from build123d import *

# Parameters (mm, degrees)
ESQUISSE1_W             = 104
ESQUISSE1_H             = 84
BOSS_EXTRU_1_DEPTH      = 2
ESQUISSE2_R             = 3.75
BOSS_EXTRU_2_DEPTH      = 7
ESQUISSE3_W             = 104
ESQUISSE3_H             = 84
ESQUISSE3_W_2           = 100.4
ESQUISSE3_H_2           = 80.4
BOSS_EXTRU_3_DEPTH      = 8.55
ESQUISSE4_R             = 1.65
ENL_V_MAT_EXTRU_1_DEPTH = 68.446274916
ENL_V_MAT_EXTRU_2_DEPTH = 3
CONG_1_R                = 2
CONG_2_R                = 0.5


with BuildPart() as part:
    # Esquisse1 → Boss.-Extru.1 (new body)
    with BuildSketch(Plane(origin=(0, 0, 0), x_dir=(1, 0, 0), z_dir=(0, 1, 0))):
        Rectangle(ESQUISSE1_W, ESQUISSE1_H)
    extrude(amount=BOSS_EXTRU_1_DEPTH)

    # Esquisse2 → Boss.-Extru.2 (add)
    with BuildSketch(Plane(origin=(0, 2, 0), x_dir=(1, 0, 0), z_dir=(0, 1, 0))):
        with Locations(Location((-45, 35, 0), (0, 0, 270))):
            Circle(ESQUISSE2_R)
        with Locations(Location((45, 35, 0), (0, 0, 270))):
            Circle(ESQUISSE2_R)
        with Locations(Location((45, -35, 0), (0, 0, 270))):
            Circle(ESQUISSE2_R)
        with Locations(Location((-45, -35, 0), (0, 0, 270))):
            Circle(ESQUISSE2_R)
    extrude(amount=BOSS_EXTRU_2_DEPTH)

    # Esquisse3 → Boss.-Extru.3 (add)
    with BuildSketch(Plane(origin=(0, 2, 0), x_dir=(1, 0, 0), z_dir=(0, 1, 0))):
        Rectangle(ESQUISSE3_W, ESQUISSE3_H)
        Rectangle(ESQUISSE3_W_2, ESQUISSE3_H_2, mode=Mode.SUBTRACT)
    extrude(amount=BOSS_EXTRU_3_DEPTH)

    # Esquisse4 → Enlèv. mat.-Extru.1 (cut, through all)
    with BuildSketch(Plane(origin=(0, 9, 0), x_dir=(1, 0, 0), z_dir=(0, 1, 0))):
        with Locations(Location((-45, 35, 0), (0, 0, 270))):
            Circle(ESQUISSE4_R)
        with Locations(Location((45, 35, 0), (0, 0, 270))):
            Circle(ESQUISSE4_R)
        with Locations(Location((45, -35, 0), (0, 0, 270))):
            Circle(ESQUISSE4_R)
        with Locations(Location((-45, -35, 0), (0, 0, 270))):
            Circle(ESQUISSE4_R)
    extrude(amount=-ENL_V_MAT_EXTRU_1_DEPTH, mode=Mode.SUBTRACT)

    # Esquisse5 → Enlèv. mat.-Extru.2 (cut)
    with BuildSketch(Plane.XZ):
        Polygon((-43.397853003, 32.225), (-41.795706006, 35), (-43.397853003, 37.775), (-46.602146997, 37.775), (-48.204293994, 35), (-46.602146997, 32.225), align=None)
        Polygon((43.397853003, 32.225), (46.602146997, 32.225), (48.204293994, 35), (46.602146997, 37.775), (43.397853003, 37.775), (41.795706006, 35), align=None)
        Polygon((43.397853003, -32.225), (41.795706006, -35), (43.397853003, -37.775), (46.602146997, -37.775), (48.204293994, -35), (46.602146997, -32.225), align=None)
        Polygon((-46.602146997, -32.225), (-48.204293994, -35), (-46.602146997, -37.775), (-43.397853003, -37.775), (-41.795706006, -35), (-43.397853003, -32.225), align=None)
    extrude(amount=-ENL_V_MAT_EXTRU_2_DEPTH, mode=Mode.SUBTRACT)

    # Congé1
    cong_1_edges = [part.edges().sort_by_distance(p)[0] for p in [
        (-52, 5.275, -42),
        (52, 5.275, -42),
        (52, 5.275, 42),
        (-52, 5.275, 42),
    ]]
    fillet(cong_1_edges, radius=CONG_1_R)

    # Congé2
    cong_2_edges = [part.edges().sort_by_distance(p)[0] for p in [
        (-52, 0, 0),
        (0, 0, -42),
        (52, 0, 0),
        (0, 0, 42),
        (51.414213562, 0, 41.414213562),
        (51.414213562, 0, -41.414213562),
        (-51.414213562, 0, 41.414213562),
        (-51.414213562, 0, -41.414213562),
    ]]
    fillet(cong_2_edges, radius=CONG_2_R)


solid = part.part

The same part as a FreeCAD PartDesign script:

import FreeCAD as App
import Part
import Sketcher
Q = App.Units.Quantity


def edges_at(feature, points):
    """Names of the edges that pass closest to the given points."""
    edges = feature.Shape.Edges
    near = lambda p: min(range(len(edges)), key=lambda i: edges[i].distToShape(Part.Vertex(*p))[0])
    return sorted({f"Edge{near(p) + 1}" for p in points})

doc = App.newDocument("Part")
params = doc.addObject("Spreadsheet::Sheet", "Params")
for row, (alias, value) in enumerate([
    ("sketch1_width", "104 mm"),
    ("sketch1_height", "84 mm"),
    ("pad1_length", "2 mm"),
    ("sketch2_diameter", "7.5 mm"),
    ("pad2_length", "7 mm"),
    ("sketch3_width", "104 mm"),
    ("sketch3_height", "84 mm"),
    ("sketch3_width2", "100.4 mm"),
    ("sketch3_height2", "80.4 mm"),
    ("pad3_length", "8.55 mm"),
    ("sketch4_diameter", "3.3 mm"),
    ("pocket2_length", "3 mm"),
    ("fillet_radius", "2 mm"),
    ("fillet2_radius", "0.5 mm"),
], start=1):
    params.set(f"A{row}", alias)
    params.set(f"B{row}", "=" + value)
    params.setAlias(f"B{row}", alias)

body = doc.addObject("PartDesign::Body", "Body")

# Sketch on XZ plane
sketch1 = body.newObject("Sketcher::SketchObject", "Sketch")
sketch1.AttachmentSupport = (doc.getObject("XZ_Plane"), [""])
sketch1.MapMode = "FlatFace"
sketch1.addGeometry(Part.LineSegment(App.Vector(-52, -42, 0), App.Vector(-52, 42, 0)), False)
sketch1.addGeometry(Part.LineSegment(App.Vector(-52, 42, 0), App.Vector(52, 42, 0)), False)
sketch1.addGeometry(Part.LineSegment(App.Vector(52, 42, 0), App.Vector(52, -42, 0)), False)
sketch1.addGeometry(Part.LineSegment(App.Vector(52, -42, 0), App.Vector(-52, -42, 0)), False)
sketch1.addConstraint(Sketcher.Constraint("Coincident", 0, 2, 1, 1))
sketch1.addConstraint(Sketcher.Constraint("Coincident", 1, 2, 2, 1))
sketch1.addConstraint(Sketcher.Constraint("Coincident", 2, 2, 3, 1))
sketch1.addConstraint(Sketcher.Constraint("Coincident", 3, 2, 0, 1))
sketch1.addConstraint(Sketcher.Constraint("Vertical", 0))
sketch1.addConstraint(Sketcher.Constraint("Horizontal", 1))
sketch1.addConstraint(Sketcher.Constraint("Vertical", 2))
sketch1.addConstraint(Sketcher.Constraint("Horizontal", 3))
sketch1.addConstraint(Sketcher.Constraint("Symmetric", 0, 2, 2, 2, -1, 1))
sketch1.addConstraint(Sketcher.Constraint("DistanceX", 1, 1, 1, 2, Q("104 mm")))
sketch1.addConstraint(Sketcher.Constraint("DistanceY", 0, 1, 0, 2, Q("84 mm")))
sketch1.setExpression("Constraints[9]", "Params.sketch1_width")
sketch1.setExpression("Constraints[10]", "Params.sketch1_height")
pad1 = body.newObject("PartDesign::Pad", "Pad")
pad1.Profile = sketch1
pad1.setExpression("Length", "Params.pad1_length")
pad1.Reversed = True

# Sketch on XZ plane
sketch2 = body.newObject("Sketcher::SketchObject", "Sketch001")
sketch2.AttachmentSupport = (doc.getObject("XZ_Plane"), [""])
sketch2.MapMode = "FlatFace"
sketch2.AttachmentOffset = App.Placement(App.Vector(0, 0, -2), App.Rotation())
sketch2.addGeometry(Part.Circle(App.Vector(-45, -35, 0), App.Vector(0, 0, 1), 3.8), False)
sketch2.addGeometry(Part.Circle(App.Vector(45, -35, 0), App.Vector(0, 0, 1), 3.8), False)
sketch2.addGeometry(Part.Circle(App.Vector(45, 35, 0), App.Vector(0, 0, 1), 3.8), False)
sketch2.addGeometry(Part.Circle(App.Vector(-45, 35, 0), App.Vector(0, 0, 1), 3.8), False)
sketch2.addConstraint(Sketcher.Constraint("Equal", 0, 1))
sketch2.addConstraint(Sketcher.Constraint("Equal", 1, 2))
sketch2.addConstraint(Sketcher.Constraint("Equal", 2, 3))
sketch2.addConstraint(Sketcher.Constraint("Symmetric", 0, 3, 2, 3, -1, 1))
sketch2.addConstraint(Sketcher.Constraint("Symmetric", 1, 3, 3, 3, -1, 1))
sketch2.addConstraint(Sketcher.Constraint("Symmetric", 0, 3, 1, 3, -2))
sketch2.addConstraint(Sketcher.Constraint("Diameter", 0, Q("7.5 mm")))
sketch2.addConstraint(Sketcher.Constraint("DistanceX", 0, 3, -1, 1, Q("45 mm")))
sketch2.addConstraint(Sketcher.Constraint("DistanceY", 0, 3, -1, 1, Q("35 mm")))
sketch2.setExpression("Constraints[6]", "Params.sketch2_diameter")
pad2 = body.newObject("PartDesign::Pad", "Pad001")
pad2.Profile = sketch2
pad2.setExpression("Length", "Params.pad2_length")
pad2.Reversed = True

# Sketch on XZ plane
sketch3 = body.newObject("Sketcher::SketchObject", "Sketch002")
sketch3.AttachmentSupport = (doc.getObject("XZ_Plane"), [""])
sketch3.MapMode = "FlatFace"
sketch3.AttachmentOffset = App.Placement(App.Vector(0, 0, -2), App.Rotation())
sketch3.addGeometry(Part.LineSegment(App.Vector(-52, -42, 0), App.Vector(-52, 42, 0)), False)
sketch3.addGeometry(Part.LineSegment(App.Vector(-52, 42, 0), App.Vector(52, 42, 0)), False)
sketch3.addGeometry(Part.LineSegment(App.Vector(52, 42, 0), App.Vector(52, -42, 0)), False)
sketch3.addGeometry(Part.LineSegment(App.Vector(52, -42, 0), App.Vector(-52, -42, 0)), False)
sketch3.addGeometry(Part.LineSegment(App.Vector(50, 40, 0), App.Vector(-50, 40, 0)), False)
sketch3.addGeometry(Part.LineSegment(App.Vector(-50, 40, 0), App.Vector(-50, -40, 0)), False)
sketch3.addGeometry(Part.LineSegment(App.Vector(-50, -40, 0), App.Vector(50, -40, 0)), False)
sketch3.addGeometry(Part.LineSegment(App.Vector(50, -40, 0), App.Vector(50, 40, 0)), False)
sketch3.addConstraint(Sketcher.Constraint("Coincident", 0, 2, 1, 1))
sketch3.addConstraint(Sketcher.Constraint("Coincident", 1, 2, 2, 1))
sketch3.addConstraint(Sketcher.Constraint("Coincident", 2, 2, 3, 1))
sketch3.addConstraint(Sketcher.Constraint("Coincident", 3, 2, 0, 1))
sketch3.addConstraint(Sketcher.Constraint("Coincident", 4, 2, 5, 1))
sketch3.addConstraint(Sketcher.Constraint("Coincident", 5, 2, 6, 1))
sketch3.addConstraint(Sketcher.Constraint("Coincident", 6, 2, 7, 1))
sketch3.addConstraint(Sketcher.Constraint("Coincident", 7, 2, 4, 1))
sketch3.addConstraint(Sketcher.Constraint("Vertical", 0))
sketch3.addConstraint(Sketcher.Constraint("Horizontal", 1))
sketch3.addConstraint(Sketcher.Constraint("Vertical", 2))
sketch3.addConstraint(Sketcher.Constraint("Horizontal", 3))
sketch3.addConstraint(Sketcher.Constraint("Horizontal", 4))
sketch3.addConstraint(Sketcher.Constraint("Vertical", 5))
sketch3.addConstraint(Sketcher.Constraint("Horizontal", 6))
sketch3.addConstraint(Sketcher.Constraint("Vertical", 7))
sketch3.addConstraint(Sketcher.Constraint("Symmetric", 0, 2, 2, 2, -1, 1))
sketch3.addConstraint(Sketcher.Constraint("Symmetric", 4, 2, 6, 2, -1, 1))
sketch3.addConstraint(Sketcher.Constraint("DistanceX", 1, 1, 1, 2, Q("104 mm")))
sketch3.addConstraint(Sketcher.Constraint("DistanceY", 0, 1, 0, 2, Q("84 mm")))
sketch3.addConstraint(Sketcher.Constraint("DistanceX", 4, 2, 4, 1, Q("100.4 mm")))
sketch3.addConstraint(Sketcher.Constraint("DistanceY", 5, 2, 5, 1, Q("80.4 mm")))
sketch3.setExpression("Constraints[18]", "Params.sketch3_width")
sketch3.setExpression("Constraints[19]", "Params.sketch3_height")
sketch3.setExpression("Constraints[20]", "Params.sketch3_width2")
sketch3.setExpression("Constraints[21]", "Params.sketch3_height2")
pad3 = body.newObject("PartDesign::Pad", "Pad002")
pad3.Profile = sketch3
pad3.setExpression("Length", "Params.pad3_length")
pad3.Reversed = True

# Sketch on XZ plane
sketch4 = body.newObject("Sketcher::SketchObject", "Sketch003")
sketch4.AttachmentSupport = (doc.getObject("XZ_Plane"), [""])
sketch4.MapMode = "FlatFace"
sketch4.AttachmentOffset = App.Placement(App.Vector(0, 0, -9), App.Rotation())
sketch4.addGeometry(Part.Circle(App.Vector(-45, -35, 0), App.Vector(0, 0, 1), 1.6), False)
sketch4.addGeometry(Part.Circle(App.Vector(45, -35, 0), App.Vector(0, 0, 1), 1.6), False)
sketch4.addGeometry(Part.Circle(App.Vector(45, 35, 0), App.Vector(0, 0, 1), 1.6), False)
sketch4.addGeometry(Part.Circle(App.Vector(-45, 35, 0), App.Vector(0, 0, 1), 1.6), False)
sketch4.addConstraint(Sketcher.Constraint("Equal", 0, 1))
sketch4.addConstraint(Sketcher.Constraint("Equal", 1, 2))
sketch4.addConstraint(Sketcher.Constraint("Equal", 2, 3))
sketch4.addConstraint(Sketcher.Constraint("Symmetric", 0, 3, 2, 3, -1, 1))
sketch4.addConstraint(Sketcher.Constraint("Symmetric", 1, 3, 3, 3, -1, 1))
sketch4.addConstraint(Sketcher.Constraint("Symmetric", 0, 3, 1, 3, -2))
sketch4.addConstraint(Sketcher.Constraint("Diameter", 0, Q("3.3 mm")))
sketch4.addConstraint(Sketcher.Constraint("DistanceX", 0, 3, -1, 1, Q("45 mm")))
sketch4.addConstraint(Sketcher.Constraint("DistanceY", 0, 3, -1, 1, Q("35 mm")))
sketch4.setExpression("Constraints[6]", "Params.sketch4_diameter")
pocket1 = body.newObject("PartDesign::Pocket", "Pocket")
pocket1.Profile = sketch4
pocket1.Type = "ThroughAll"
pocket1.Reversed = True

# Sketch on XZ plane
sketch5 = body.newObject("Sketcher::SketchObject", "Sketch004")
sketch5.AttachmentSupport = (doc.getObject("XZ_Plane"), [""])
sketch5.MapMode = "FlatFace"
sketch5.addGeometry(Part.LineSegment(App.Vector(-43.4, 32.2, 0), App.Vector(-41.8, 35, 0)), False)
sketch5.addGeometry(Part.LineSegment(App.Vector(-41.8, 35, 0), App.Vector(-43.4, 37.8, 0)), False)
sketch5.addGeometry(Part.LineSegment(App.Vector(-43.4, 37.8, 0), App.Vector(-46.6, 37.8, 0)), False)
sketch5.addGeometry(Part.LineSegment(App.Vector(-46.6, 37.8, 0), App.Vector(-48.2, 35, 0)), False)
sketch5.addGeometry(Part.LineSegment(App.Vector(-48.2, 35, 0), App.Vector(-46.6, 32.2, 0)), False)
sketch5.addGeometry(Part.LineSegment(App.Vector(-46.6, 32.2, 0), App.Vector(-43.4, 32.2, 0)), False)
sketch5.addGeometry(Part.LineSegment(App.Vector(43.4, 32.2, 0), App.Vector(46.6, 32.2, 0)), False)
sketch5.addGeometry(Part.LineSegment(App.Vector(46.6, 32.2, 0), App.Vector(48.2, 35, 0)), False)
sketch5.addGeometry(Part.LineSegment(App.Vector(48.2, 35, 0), App.Vector(46.6, 37.8, 0)), False)
sketch5.addGeometry(Part.LineSegment(App.Vector(46.6, 37.8, 0), App.Vector(43.4, 37.8, 0)), False)
sketch5.addGeometry(Part.LineSegment(App.Vector(43.4, 37.8, 0), App.Vector(41.8, 35, 0)), False)
sketch5.addGeometry(Part.LineSegment(App.Vector(41.8, 35, 0), App.Vector(43.4, 32.2, 0)), False)
sketch5.addGeometry(Part.LineSegment(App.Vector(43.4, -32.2, 0), App.Vector(41.8, -35, 0)), False)
sketch5.addGeometry(Part.LineSegment(App.Vector(41.8, -35, 0), App.Vector(43.4, -37.8, 0)), False)
sketch5.addGeometry(Part.LineSegment(App.Vector(43.4, -37.8, 0), App.Vector(46.6, -37.8, 0)), False)
sketch5.addGeometry(Part.LineSegment(App.Vector(46.6, -37.8, 0), App.Vector(48.2, -35, 0)), False)
sketch5.addGeometry(Part.LineSegment(App.Vector(48.2, -35, 0), App.Vector(46.6, -32.2, 0)), False)
sketch5.addGeometry(Part.LineSegment(App.Vector(46.6, -32.2, 0), App.Vector(43.4, -32.2, 0)), False)
sketch5.addGeometry(Part.LineSegment(App.Vector(-46.6, -32.2, 0), App.Vector(-48.2, -35, 0)), False)
sketch5.addGeometry(Part.LineSegment(App.Vector(-48.2, -35, 0), App.Vector(-46.6, -37.8, 0)), False)
sketch5.addGeometry(Part.LineSegment(App.Vector(-46.6, -37.8, 0), App.Vector(-43.4, -37.8, 0)), False)
sketch5.addGeometry(Part.LineSegment(App.Vector(-43.4, -37.8, 0), App.Vector(-41.8, -35, 0)), False)
sketch5.addGeometry(Part.LineSegment(App.Vector(-41.8, -35, 0), App.Vector(-43.4, -32.2, 0)), False)
sketch5.addGeometry(Part.LineSegment(App.Vector(-43.4, -32.2, 0), App.Vector(-46.6, -32.2, 0)), False)
sketch5.addConstraint(Sketcher.Constraint("Coincident", 0, 2, 1, 1))
sketch5.addConstraint(Sketcher.Constraint("Coincident", 1, 2, 2, 1))
sketch5.addConstraint(Sketcher.Constraint("Coincident", 2, 2, 3, 1))
sketch5.addConstraint(Sketcher.Constraint("Coincident", 3, 2, 4, 1))
sketch5.addConstraint(Sketcher.Constraint("Coincident", 4, 2, 5, 1))
sketch5.addConstraint(Sketcher.Constraint("Coincident", 5, 2, 0, 1))
sketch5.addConstraint(Sketcher.Constraint("Coincident", 6, 2, 7, 1))
sketch5.addConstraint(Sketcher.Constraint("Coincident", 7, 2, 8, 1))
sketch5.addConstraint(Sketcher.Constraint("Coincident", 8, 2, 9, 1))
sketch5.addConstraint(Sketcher.Constraint("Coincident", 9, 2, 10, 1))
sketch5.addConstraint(Sketcher.Constraint("Coincident", 10, 2, 11, 1))
sketch5.addConstraint(Sketcher.Constraint("Coincident", 11, 2, 6, 1))
sketch5.addConstraint(Sketcher.Constraint("Coincident", 12, 2, 13, 1))
sketch5.addConstraint(Sketcher.Constraint("Coincident", 13, 2, 14, 1))
sketch5.addConstraint(Sketcher.Constraint("Coincident", 14, 2, 15, 1))
sketch5.addConstraint(Sketcher.Constraint("Coincident", 15, 2, 16, 1))
sketch5.addConstraint(Sketcher.Constraint("Coincident", 16, 2, 17, 1))
sketch5.addConstraint(Sketcher.Constraint("Coincident", 17, 2, 12, 1))
sketch5.addConstraint(Sketcher.Constraint("Coincident", 18, 2, 19, 1))
sketch5.addConstraint(Sketcher.Constraint("Coincident", 19, 2, 20, 1))
sketch5.addConstraint(Sketcher.Constraint("Coincident", 20, 2, 21, 1))
sketch5.addConstraint(Sketcher.Constraint("Coincident", 21, 2, 22, 1))
sketch5.addConstraint(Sketcher.Constraint("Coincident", 22, 2, 23, 1))
sketch5.addConstraint(Sketcher.Constraint("Coincident", 23, 2, 18, 1))
sketch5.addConstraint(Sketcher.Constraint("Horizontal", 2))
sketch5.addConstraint(Sketcher.Constraint("Horizontal", 5))
sketch5.addConstraint(Sketcher.Constraint("Horizontal", 6))
sketch5.addConstraint(Sketcher.Constraint("Horizontal", 9))
sketch5.addConstraint(Sketcher.Constraint("Horizontal", 14))
sketch5.addConstraint(Sketcher.Constraint("Horizontal", 17))
sketch5.addConstraint(Sketcher.Constraint("Horizontal", 20))
sketch5.addConstraint(Sketcher.Constraint("Horizontal", 23))
sketch5.addConstraint(Sketcher.Constraint("Symmetric", 0, 2, 12, 2, -1, 1))
sketch5.addConstraint(Sketcher.Constraint("Symmetric", 1, 2, 13, 2, -1, 1))
sketch5.addConstraint(Sketcher.Constraint("Symmetric", 3, 2, 15, 2, -1, 1))
sketch5.addConstraint(Sketcher.Constraint("Symmetric", 4, 2, 16, 2, -1, 1))
sketch5.addConstraint(Sketcher.Constraint("Symmetric", 7, 2, 18, 2, -1, 1))
sketch5.addConstraint(Sketcher.Constraint("Symmetric", 8, 2, 19, 2, -1, 1))
sketch5.addConstraint(Sketcher.Constraint("Symmetric", 10, 2, 21, 2, -1, 1))
sketch5.addConstraint(Sketcher.Constraint("Symmetric", 11, 2, 22, 2, -1, 1))
sketch5.addConstraint(Sketcher.Constraint("Symmetric", 4, 2, 6, 2, -2))
sketch5.addConstraint(Sketcher.Constraint("Symmetric", 3, 2, 7, 2, -2))
sketch5.addConstraint(Sketcher.Constraint("Symmetric", 2, 2, 8, 2, -2))
sketch5.addConstraint(Sketcher.Constraint("Symmetric", 0, 2, 10, 2, -2))
sketch5.addConstraint(Sketcher.Constraint("Parallel", 0, 3))
sketch5.addConstraint(Sketcher.Constraint("Parallel", 1, 4))
sketch5.addConstraint(Sketcher.Constraint("Parallel", 3, 7))
sketch5.addConstraint(Sketcher.Constraint("Parallel", 7, 10))
sketch5.addConstraint(Sketcher.Constraint("Parallel", 8, 11))
sketch5.addConstraint(Sketcher.Constraint("Parallel", 10, 12))
sketch5.addConstraint(Sketcher.Constraint("Parallel", 12, 15))
sketch5.addConstraint(Sketcher.Constraint("Parallel", 15, 18))
sketch5.addConstraint(Sketcher.Constraint("Parallel", 18, 21))
sketch5.addConstraint(Sketcher.Constraint("Horizontal", 0, 2, 3, 2))
sketch5.addConstraint(Sketcher.Constraint("Vertical", 2, 2, 4, 2))
sketch5.addConstraint(Sketcher.Constraint("Angle", 0, Q("60 deg")))
sketch5.addConstraint(Sketcher.Constraint("DistanceY", -1, 1, 0, 2, Q("35 mm")))
sketch5.addConstraint(Sketcher.Constraint("DistanceX", 5, 2, 6, 2, Q("90 mm")))
sketch5.addConstraint(Sketcher.Constraint("DistanceY", 4, 2, 2, 2, Q("5.55 mm")))
sketch5.addConstraint(Sketcher.Constraint("DistanceX", 2, 2, 2, 1, Q("3.204294 mm")))
pocket2 = body.newObject("PartDesign::Pocket", "Pocket001")
pocket2.Profile = sketch5
pocket2.setExpression("Length", "Params.pocket2_length")
doc.recompute()

fillet = body.newObject("PartDesign::Fillet", "Fillet")
fillet.Base = (pocket2, edges_at(pocket2, [
    (-52, 5.275, -42),
    (52, 5.275, -42),
    (52, 5.275, 42),
    (-52, 5.275, 42),
]))
fillet.setExpression("Radius", "Params.fillet_radius")
doc.recompute()

fillet2 = body.newObject("PartDesign::Fillet", "Fillet001")
fillet2.Base = (fillet, edges_at(fillet, [
    (-52, 0, 0),
    (0, 0, -42),
    (52, 0, 0),
    (0, 0, 42),
    (51.414, 0, 41.414),
    (51.414, 0, -41.414),
    (-51.414, 0, 41.414),
    (-51.414, 0, -41.414),
]))
fillet2.setExpression("Radius", "Params.fillet2_radius")

doc.recompute()
